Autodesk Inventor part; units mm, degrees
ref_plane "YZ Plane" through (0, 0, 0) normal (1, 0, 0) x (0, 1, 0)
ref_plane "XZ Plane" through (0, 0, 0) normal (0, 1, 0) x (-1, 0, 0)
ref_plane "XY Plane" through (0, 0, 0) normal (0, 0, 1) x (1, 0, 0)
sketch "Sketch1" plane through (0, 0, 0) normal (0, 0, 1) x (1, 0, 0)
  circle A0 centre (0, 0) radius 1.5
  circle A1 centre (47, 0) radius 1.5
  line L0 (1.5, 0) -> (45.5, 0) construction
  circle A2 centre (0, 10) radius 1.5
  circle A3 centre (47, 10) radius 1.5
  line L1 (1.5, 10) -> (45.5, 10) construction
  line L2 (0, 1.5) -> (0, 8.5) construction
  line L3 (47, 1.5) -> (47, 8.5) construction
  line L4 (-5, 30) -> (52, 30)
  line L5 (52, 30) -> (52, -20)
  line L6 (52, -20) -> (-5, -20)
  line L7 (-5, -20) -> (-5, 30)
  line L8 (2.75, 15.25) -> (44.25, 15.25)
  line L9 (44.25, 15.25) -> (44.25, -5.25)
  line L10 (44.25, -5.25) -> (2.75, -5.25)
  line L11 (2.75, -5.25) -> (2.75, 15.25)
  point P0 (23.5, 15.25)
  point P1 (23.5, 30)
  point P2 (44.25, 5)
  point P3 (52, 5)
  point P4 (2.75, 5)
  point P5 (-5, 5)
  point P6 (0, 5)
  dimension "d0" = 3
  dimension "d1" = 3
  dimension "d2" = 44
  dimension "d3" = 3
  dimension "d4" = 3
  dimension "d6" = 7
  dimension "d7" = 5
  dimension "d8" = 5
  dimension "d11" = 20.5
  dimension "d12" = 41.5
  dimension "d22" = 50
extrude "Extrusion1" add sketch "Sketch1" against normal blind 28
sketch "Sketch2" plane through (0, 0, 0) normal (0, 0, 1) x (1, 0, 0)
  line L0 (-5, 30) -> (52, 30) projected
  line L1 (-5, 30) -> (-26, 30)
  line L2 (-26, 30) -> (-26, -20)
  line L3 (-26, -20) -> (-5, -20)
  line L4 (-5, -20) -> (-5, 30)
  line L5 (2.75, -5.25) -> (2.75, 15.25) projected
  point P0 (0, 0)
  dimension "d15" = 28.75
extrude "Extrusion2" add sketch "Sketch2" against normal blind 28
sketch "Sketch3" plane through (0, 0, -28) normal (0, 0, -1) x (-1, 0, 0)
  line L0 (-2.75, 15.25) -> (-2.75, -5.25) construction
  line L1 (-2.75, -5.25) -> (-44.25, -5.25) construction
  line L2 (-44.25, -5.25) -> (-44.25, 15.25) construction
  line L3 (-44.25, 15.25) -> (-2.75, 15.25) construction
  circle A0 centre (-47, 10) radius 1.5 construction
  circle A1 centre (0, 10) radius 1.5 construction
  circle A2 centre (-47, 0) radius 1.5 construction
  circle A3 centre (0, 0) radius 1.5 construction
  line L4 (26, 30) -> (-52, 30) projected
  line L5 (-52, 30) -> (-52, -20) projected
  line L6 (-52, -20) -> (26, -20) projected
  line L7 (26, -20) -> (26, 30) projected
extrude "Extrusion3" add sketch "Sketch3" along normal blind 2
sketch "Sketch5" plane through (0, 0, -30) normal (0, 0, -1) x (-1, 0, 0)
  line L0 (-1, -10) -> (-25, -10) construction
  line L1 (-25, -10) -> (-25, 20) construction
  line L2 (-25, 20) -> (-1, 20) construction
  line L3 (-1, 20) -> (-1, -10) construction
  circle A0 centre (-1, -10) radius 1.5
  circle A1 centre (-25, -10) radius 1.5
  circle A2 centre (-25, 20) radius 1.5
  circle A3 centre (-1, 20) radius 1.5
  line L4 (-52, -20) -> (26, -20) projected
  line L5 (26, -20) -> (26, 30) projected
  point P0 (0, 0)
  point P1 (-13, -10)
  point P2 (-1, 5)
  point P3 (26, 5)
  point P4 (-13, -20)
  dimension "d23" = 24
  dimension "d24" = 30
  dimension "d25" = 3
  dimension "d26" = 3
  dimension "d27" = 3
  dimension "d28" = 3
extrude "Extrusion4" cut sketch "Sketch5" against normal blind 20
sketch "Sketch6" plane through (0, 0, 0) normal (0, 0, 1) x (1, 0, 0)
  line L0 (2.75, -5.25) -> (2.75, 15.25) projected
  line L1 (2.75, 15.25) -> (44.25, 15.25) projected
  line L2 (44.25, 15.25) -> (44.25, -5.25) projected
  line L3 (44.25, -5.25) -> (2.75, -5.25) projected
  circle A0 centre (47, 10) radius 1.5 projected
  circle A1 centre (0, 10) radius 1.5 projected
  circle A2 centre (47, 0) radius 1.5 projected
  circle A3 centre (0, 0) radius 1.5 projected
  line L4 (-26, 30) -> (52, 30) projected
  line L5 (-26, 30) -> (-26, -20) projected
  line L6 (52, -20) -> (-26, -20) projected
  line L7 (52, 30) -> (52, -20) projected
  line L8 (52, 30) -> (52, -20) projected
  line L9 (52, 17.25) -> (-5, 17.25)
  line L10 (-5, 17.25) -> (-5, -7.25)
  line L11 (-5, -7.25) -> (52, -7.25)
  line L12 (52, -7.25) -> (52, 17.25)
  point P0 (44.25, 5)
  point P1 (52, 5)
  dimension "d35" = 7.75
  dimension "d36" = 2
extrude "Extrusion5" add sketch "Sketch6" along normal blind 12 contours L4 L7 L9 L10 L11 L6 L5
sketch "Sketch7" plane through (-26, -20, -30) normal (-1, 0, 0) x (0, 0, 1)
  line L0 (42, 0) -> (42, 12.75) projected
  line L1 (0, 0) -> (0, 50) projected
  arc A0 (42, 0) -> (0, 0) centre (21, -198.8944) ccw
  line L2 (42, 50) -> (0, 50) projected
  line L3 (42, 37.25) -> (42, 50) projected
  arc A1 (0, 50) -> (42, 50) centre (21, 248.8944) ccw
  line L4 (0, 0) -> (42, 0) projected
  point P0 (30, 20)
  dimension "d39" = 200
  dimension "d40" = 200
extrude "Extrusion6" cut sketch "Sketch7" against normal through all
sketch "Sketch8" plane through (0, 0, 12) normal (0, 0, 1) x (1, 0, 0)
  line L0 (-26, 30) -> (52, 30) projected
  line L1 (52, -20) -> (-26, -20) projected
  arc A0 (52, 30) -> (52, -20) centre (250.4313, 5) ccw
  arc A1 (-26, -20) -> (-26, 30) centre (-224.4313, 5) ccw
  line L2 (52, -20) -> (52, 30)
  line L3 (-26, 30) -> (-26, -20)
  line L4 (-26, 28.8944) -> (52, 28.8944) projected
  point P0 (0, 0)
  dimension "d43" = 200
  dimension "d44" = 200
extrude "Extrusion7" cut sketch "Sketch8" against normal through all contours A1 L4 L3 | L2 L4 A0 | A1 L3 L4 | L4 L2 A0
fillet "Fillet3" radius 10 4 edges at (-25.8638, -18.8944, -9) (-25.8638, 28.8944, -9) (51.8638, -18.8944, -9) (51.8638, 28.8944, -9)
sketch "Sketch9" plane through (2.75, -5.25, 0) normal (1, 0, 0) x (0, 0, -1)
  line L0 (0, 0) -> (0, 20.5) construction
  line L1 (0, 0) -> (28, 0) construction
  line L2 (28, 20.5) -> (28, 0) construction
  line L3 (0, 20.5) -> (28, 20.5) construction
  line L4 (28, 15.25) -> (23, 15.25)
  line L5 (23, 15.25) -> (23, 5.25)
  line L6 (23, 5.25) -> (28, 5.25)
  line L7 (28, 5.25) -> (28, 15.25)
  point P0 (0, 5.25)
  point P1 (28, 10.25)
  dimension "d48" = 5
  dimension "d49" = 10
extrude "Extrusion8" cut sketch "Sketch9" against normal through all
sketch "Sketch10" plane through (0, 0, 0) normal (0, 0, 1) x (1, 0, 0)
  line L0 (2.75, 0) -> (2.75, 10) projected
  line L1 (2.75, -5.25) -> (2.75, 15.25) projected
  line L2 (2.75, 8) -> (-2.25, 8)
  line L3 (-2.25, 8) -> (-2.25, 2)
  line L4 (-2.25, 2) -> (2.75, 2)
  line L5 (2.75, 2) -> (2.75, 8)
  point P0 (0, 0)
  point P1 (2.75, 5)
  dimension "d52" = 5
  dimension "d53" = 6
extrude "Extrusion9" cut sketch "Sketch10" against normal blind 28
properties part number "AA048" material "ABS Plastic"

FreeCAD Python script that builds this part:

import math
import FreeCAD as App
import Part
import Sketcher

V = App.Vector
Q = App.Units.Quantity


def edges_at(feature, points):
    """Names of the edges that pass closest to the given points."""
    edges = feature.Shape.Edges
    near = lambda p: min(range(len(edges)), key=lambda i: edges[i].distToShape(Part.Vertex(*p))[0])
    return sorted({f"Edge{near(p) + 1}" for p in points})


def add_polygon(sketch, points):
    """Adds a closed chain of lines whose ends are joined by coincident constraints."""
    first, n = sketch.GeometryCount, len(points)
    for a, b in zip(points, points[1:] + points[:1]):
        sketch.addGeometry(Part.LineSegment(App.Vector(*a, 0), App.Vector(*b, 0)), False)
    for i in range(n):
        sketch.addConstraint(Sketcher.Constraint("Coincident", first + i, 2, first + (i + 1) % n, 1))

doc = App.newDocument("Part")
params = doc.addObject("Spreadsheet::Sheet", "Params")
for row, (alias, value) in enumerate([
    ("sketch1_diameter", "3 mm"),
    ("sketch1_height", "50 mm"),
    ("sketch1_width", "41.5 mm"),
    ("sketch1_height2", "20.5 mm"),
    ("sketch1_width2", "57 mm"),
    ("pad1_length", "28 mm"),
    ("sketch2_width", "21 mm"),
    ("sketch2_height", "50 mm"),
    ("pad2_length", "28 mm"),
    ("sketch3_width", "78 mm"),
    ("sketch3_height", "50 mm"),
    ("pad3_length", "2 mm"),
    ("sketch4_diameter", "3 mm"),
    ("pocket1_length", "20 mm"),
    ("sketch5_width", "78 mm"),
    ("sketch5_width2", "57 mm"),
    ("sketch5_height", "50 mm"),
    ("sketch5_height2", "24.5 mm"),
    ("pad4_length", "12 mm"),
    ("sketch6_radius", "200 mm"),
    ("sketch6_height", "42 mm"),
    ("sketch7_radius", "200 mm"),
    ("sketch7_height", "50 mm"),
    ("fillet_radius", "10 mm"),
    ("sketch8_width", "10 mm"),
    ("sketch8_height", "5 mm"),
    ("sketch9_width", "5 mm"),
    ("sketch9_height", "6 mm"),
    ("pocket5_length", "28 mm"),
], start=1):
    params.set(f"A{row}", alias)
    params.set(f"B{row}", "=" + value)
    params.setAlias(f"B{row}", alias)

body = doc.addObject("PartDesign::Body", "Body")

sketch1 = body.newObject("Sketcher::SketchObject", "Sketch")
sketch1.AttachmentSupport = (doc.getObject("XY_Plane"), [""])
sketch1.MapMode = "FlatFace"
add_polygon(sketch1, [(52, 30), (-5, 30), (-5, -20), (52, -20)])
sketch1.addGeometry(Part.Circle(V(0, 0, 0), V(0, 0, 1), 1.5), False)
sketch1.addGeometry(Part.Circle(V(47, 0, 0), V(0, 0, 1), 1.5), False)
sketch1.addGeometry(Part.Circle(V(0, 10, 0), V(0, 0, 1), 1.5), False)
add_polygon(sketch1, [(2.8, -5.2), (2.8, 15.2), (44.2, 15.2), (44.2, -5.2)])
sketch1.addGeometry(Part.Circle(V(47, 10, 0), V(0, 0, 1), 1.5), False)
sketch1.addConstraint([
    Sketcher.Constraint("Horizontal", 0),
    Sketcher.Constraint("Vertical", 1),
    Sketcher.Constraint("Horizontal", 2),
    Sketcher.Constraint("Vertical", 3),
    Sketcher.Constraint("Vertical", 7),
    Sketcher.Constraint("Horizontal", 8),
    Sketcher.Constraint("Vertical", 9),
    Sketcher.Constraint("Horizontal", 10),
    Sketcher.Constraint("Coincident", 4, 3, -1, 1),
    Sketcher.Constraint("Equal", 4, 5),
    Sketcher.Constraint("Equal", 5, 6),
    Sketcher.Constraint("Equal", 6, 11),
    Sketcher.Constraint("PointOnObject", 5, 3, -1),
    Sketcher.Constraint("PointOnObject", 6, 3, -2),
    Sketcher.Constraint("Horizontal", 6, 3, 11, 3),
    Sketcher.Constraint("Vertical", 5, 3, 11, 3),
    Sketcher.Constraint("Diameter", 4, Q("3 mm")),
    Sketcher.Constraint("DistanceY", 1, 2, 1, 1, Q("50 mm")),
    Sketcher.Constraint("DistanceX", 8, 1, 8, 2, Q("41.5 mm")),
    Sketcher.Constraint("DistanceY", 7, 1, 7, 2, Q("20.5 mm")),
    Sketcher.Constraint("DistanceX", 0, 2, -1, 1, Q("5 mm")),
    Sketcher.Constraint("DistanceX", 5, 3, 2, 2, Q("5 mm")),
    Sketcher.Constraint("DistanceX", 0, 2, 0, 1, Q("57 mm")),
    Sketcher.Constraint("DistanceY", -1, 1, 6, 3, Q("10 mm")),
    Sketcher.Constraint("DistanceY", -1, 1, 0, 2, Q("30 mm")),
    Sketcher.Constraint("DistanceX", -1, 1, 7, 2, Q("2.75 mm")),
    Sketcher.Constraint("DistanceY", -1, 1, 7, 2, Q("15.25 mm")),
])
sketch1.setExpression("Constraints[24]", "Params.sketch1_diameter")
sketch1.setExpression("Constraints[25]", "Params.sketch1_height")
sketch1.setExpression("Constraints[26]", "Params.sketch1_width")
sketch1.setExpression("Constraints[27]", "Params.sketch1_height2")
sketch1.setExpression("Constraints[30]", "Params.sketch1_width2")
pad1 = body.newObject("PartDesign::Pad", "Pad")
pad1.Profile = sketch1
pad1.setExpression("Length", "Params.pad1_length")
pad1.Reversed = True

sketch2 = body.newObject("Sketcher::SketchObject", "Sketch001")
sketch2.AttachmentSupport = (doc.getObject("XY_Plane"), [""])
sketch2.MapMode = "FlatFace"
add_polygon(sketch2, [(-5, -20), (-5, 30), (-26, 30), (-26, -20)])
sketch2.addConstraint([
    Sketcher.Constraint("Vertical", 0),
    Sketcher.Constraint("Horizontal", 1),
    Sketcher.Constraint("Vertical", 2),
    Sketcher.Constraint("Horizontal", 3),
    Sketcher.Constraint("DistanceX", 1, 2, 1, 1, Q("21 mm")),
    Sketcher.Constraint("DistanceY", 0, 1, 0, 2, Q("50 mm")),
    Sketcher.Constraint("DistanceX", 0, 2, -1, 1, Q("5 mm")),
    Sketcher.Constraint("DistanceY", -1, 1, 0, 2, Q("30 mm")),
])
sketch2.setExpression("Constraints[8]", "Params.sketch2_width")
sketch2.setExpression("Constraints[9]", "Params.sketch2_height")
pad2 = body.newObject("PartDesign::Pad", "Pad001")
pad2.Profile = sketch2
pad2.setExpression("Length", "Params.pad2_length")
pad2.Reversed = True

sketch3 = body.newObject("Sketcher::SketchObject", "Sketch002")
sketch3.AttachmentSupport = (doc.getObject("XY_Plane"), [""])
sketch3.MapMode = "FlatFace"
sketch3.AttachmentOffset = App.Placement(V(0, 0, -28), App.Rotation())
add_polygon(sketch3, [(-26, -20), (-26, 30), (52, 30), (52, -20)])
sketch3.addConstraint([
    Sketcher.Constraint("Vertical", 0),
    Sketcher.Constraint("Horizontal", 1),
    Sketcher.Constraint("Vertical", 2),
    Sketcher.Constraint("Horizontal", 3),
    Sketcher.Constraint("DistanceX", 1, 1, 1, 2, Q("78 mm")),
    Sketcher.Constraint("DistanceY", 0, 1, 0, 2, Q("50 mm")),
    Sketcher.Constraint("DistanceX", 0, 2, -1, 1, Q("26 mm")),
    Sketcher.Constraint("DistanceY", -1, 1, 0, 2, Q("30 mm")),
])
sketch3.setExpression("Constraints[8]", "Params.sketch3_width")
sketch3.setExpression("Constraints[9]", "Params.sketch3_height")
pad3 = body.newObject("PartDesign::Pad", "Pad002")
pad3.Profile = sketch3
pad3.setExpression("Length", "Params.pad3_length")
pad3.Reversed = True

sketch4 = body.newObject("Sketcher::SketchObject", "Sketch003")
sketch4.AttachmentSupport = (doc.getObject("XY_Plane"), [""])
sketch4.MapMode = "FlatFace"
sketch4.AttachmentOffset = App.Placement(V(0, 0, -30), App.Rotation())
sketch4.addGeometry([
    Part.Circle(V(1, -10, 0), V(0, 0, 1), 1.5),
    Part.Circle(V(25, -10, 0), V(0, 0, 1), 1.5),
    Part.Circle(V(25, 20, 0), V(0, 0, 1), 1.5),
    Part.Circle(V(1, 20, 0), V(0, 0, 1), 1.5),
], False)
sketch4.addConstraint([
    Sketcher.Constraint("Equal", 0, 1),
    Sketcher.Constraint("Equal", 1, 2),
    Sketcher.Constraint("Equal", 2, 3),
    Sketcher.Constraint("Horizontal", 0, 3, 1, 3),
    Sketcher.Constraint("Horizontal", 2, 3, 3, 3),
    Sketcher.Constraint("Vertical", 1, 3, 2, 3),
    Sketcher.Constraint("Vertical", 0, 3, 3, 3),
    Sketcher.Constraint("Diameter", 0, Q("3 mm")),
    Sketcher.Constraint("DistanceX", 0, 3, 1, 3, Q("24 mm")),
    Sketcher.Constraint("DistanceY", 1, 3, 2, 3, Q("30 mm")),
    Sketcher.Constraint("DistanceX", -1, 1, 0, 3, Q("1 mm")),
    Sketcher.Constraint("DistanceY", 0, 3, -1, 1, Q("10 mm")),
])
sketch4.setExpression("Constraints[7]", "Params.sketch4_diameter")
pocket1 = body.newObject("PartDesign::Pocket", "Pocket")
pocket1.Profile = sketch4
pocket1.setExpression("Length", "Params.pocket1_length")
pocket1.Reversed = True

sketch5 = body.newObject("Sketcher::SketchObject", "Sketch004")
sketch5.AttachmentSupport = (doc.getObject("XY_Plane"), [""])
sketch5.MapMode = "FlatFace"
add_polygon(sketch5, [(52, 30), (-26, 30), (-26, -20), (52, -20), (52, -7), (-5, -7), (-5, 17), (52, 17)])
sketch5.addConstraint([
    Sketcher.Constraint("Horizontal", 0),
    Sketcher.Constraint("Vertical", 1),
    Sketcher.Constraint("Horizontal", 2),
    Sketcher.Constraint("Vertical", 3),
    Sketcher.Constraint("Horizontal", 4),
    Sketcher.Constraint("Vertical", 5),
    Sketcher.Constraint("Horizontal", 6),
    Sketcher.Constraint("Vertical", 7),
    Sketcher.Constraint("Vertical", 3, 2, 6, 2),
    Sketcher.Constraint("Equal", 3, 7),
    Sketcher.Constraint("DistanceX", 0, 2, 0, 1, Q("78 mm")),
    Sketcher.Constraint("DistanceX", 4, 2, 4, 1, Q("57 mm")),
    Sketcher.Constraint("DistanceY", 1, 2, 1, 1, Q("50 mm")),
    Sketcher.Constraint("DistanceY", 5, 1, 5, 2, Q("24.5 mm")),
    Sketcher.Constraint("DistanceX", 0, 2, -1, 1, Q("26 mm")),
    Sketcher.Constraint("DistanceY", -1, 1, 0, 2, Q("30 mm")),
])
sketch5.setExpression("Constraints[18]", "Params.sketch5_width")
sketch5.setExpression("Constraints[19]", "Params.sketch5_width2")
sketch5.setExpression("Constraints[20]", "Params.sketch5_height")
sketch5.setExpression("Constraints[21]", "Params.sketch5_height2")
pad4 = body.newObject("PartDesign::Pad", "Pad003")
pad4.Profile = sketch5
pad4.setExpression("Length", "Params.pad4_length")

sketch6 = body.newObject("Sketcher::SketchObject", "Sketch005")
sketch6.AttachmentSupport = (doc.getObject("YZ_Plane"), [""])
sketch6.MapMode = "FlatFace"
sketch6.AttachmentOffset = App.Placement(V(0, 0, -26), App.Rotation())
sketch6.addGeometry([
    Part.LineSegment(V(30, 12, 0), V(30, -30, 0)),
    Part.ArcOfCircle(Part.Circle(V(229, -9, 0), V(0, 0, 1), 200), math.radians(173.97), math.radians(186.03)),
    Part.ArcOfCircle(Part.Circle(V(-219, -9, 0), V(0, 0, 1), 200), math.radians(-6.03), math.radians(6.03)),
    Part.LineSegment(V(-20, -30, 0), V(-20, 12, 0)),
], False)
sketch6.addConstraint([
    Sketcher.Constraint("Coincident", 0, 1, 1, 1),
    Sketcher.Constraint("Coincident", 1, 2, 0, 2),
    Sketcher.Constraint("Coincident", 2, 1, 3, 1),
    Sketcher.Constraint("Coincident", 3, 2, 2, 2),
    Sketcher.Constraint("Vertical", 0),
    Sketcher.Constraint("Vertical", 3),
    Sketcher.Constraint("Equal", 1, 2),
    Sketcher.Constraint("Horizontal", 1, 3, 2, 3),
    Sketcher.Constraint("Horizontal", 1, 2, 2, 1),
    Sketcher.Constraint("Radius", 1, Q("200 mm")),
    Sketcher.Constraint("DistanceY", 0, 2, 0, 1, Q("42 mm")),
    Sketcher.Constraint("DistanceY", 1, 3, -1, 1, Q("9 mm")),
    Sketcher.Constraint("DistanceX", -1, 1, 0, 1, Q("30 mm")),
    Sketcher.Constraint("DistanceX", 2, 1, -1, 1, Q("20 mm")),
])
sketch6.setExpression("Constraints[9]", "Params.sketch6_radius")
sketch6.setExpression("Constraints[10]", "Params.sketch6_height")
pocket2 = body.newObject("PartDesign::Pocket", "Pocket001")
pocket2.Profile = sketch6
pocket2.Type = "ThroughAll"
pocket2.Reversed = True

sketch7 = body.newObject("Sketcher::SketchObject", "Sketch006")
sketch7.AttachmentSupport = (doc.getObject("XY_Plane"), [""])
sketch7.MapMode = "FlatFace"
sketch7.AttachmentOffset = App.Placement(V(0, 0, 12), App.Rotation())
sketch7.addGeometry([
    Part.LineSegment(V(-26, 30, 0), V(-26, -20, 0)),
    Part.ArcOfCircle(Part.Circle(V(-224, 5, 0), V(0, 0, 1), 200), math.radians(-7.18), math.radians(7.18)),
    Part.ArcOfCircle(Part.Circle(V(250, 5, 0), V(0, 0, 1), 200), math.radians(172.82), math.radians(187.18)),
    Part.LineSegment(V(52, -20, 0), V(52, 30, 0)),
], False)
sketch7.addConstraint([
    Sketcher.Constraint("Coincident", 0, 1, 1, 2),
    Sketcher.Constraint("Coincident", 1, 1, 0, 2),
    Sketcher.Constraint("Coincident", 2, 1, 3, 2),
    Sketcher.Constraint("Coincident", 3, 1, 2, 2),
    Sketcher.Constraint("Vertical", 0),
    Sketcher.Constraint("Vertical", 3),
    Sketcher.Constraint("Equal", 1, 2),
    Sketcher.Constraint("Horizontal", 1, 3, 2, 3),
    Sketcher.Constraint("Horizontal", 0, 1, 2, 1),
    Sketcher.Constraint("Radius", 1, Q("200 mm")),
    Sketcher.Constraint("DistanceY", 0, 2, 0, 1, Q("50 mm")),
    Sketcher.Constraint("DistanceY", -1, 1, 1, 3, Q("5 mm")),
    Sketcher.Constraint("DistanceX", 0, 1, -1, 1, Q("26 mm")),
    Sketcher.Constraint("DistanceX", -1, 1, 2, 1, Q("52 mm")),
])
sketch7.setExpression("Constraints[9]", "Params.sketch7_radius")
sketch7.setExpression("Constraints[10]", "Params.sketch7_height")
pocket3 = body.newObject("PartDesign::Pocket", "Pocket002")
pocket3.Profile = sketch7
pocket3.Type = "ThroughAll"
doc.recompute()

fillet = body.newObject("PartDesign::Fillet", "Fillet")
fillet.Base = (pocket3, edges_at(pocket3, [
    (-25.864, -18.894, -9),
    (-25.864, 28.894, -9),
    (51.864, -18.894, -9),
    (51.864, 28.894, -9),
]))
fillet.setExpression("Radius", "Params.fillet_radius")

sketch8 = body.newObject("Sketcher::SketchObject", "Sketch007")
sketch8.AttachmentSupport = (doc.getObject("YZ_Plane"), [""])
sketch8.MapMode = "FlatFace"
sketch8.AttachmentOffset = App.Placement(V(0, 0, 2.75), App.Rotation())
add_polygon(sketch8, [(0, -28), (10, -28), (10, -23), (0, -23)])
sketch8.addConstraint([
    Sketcher.Constraint("Horizontal", 0),
    Sketcher.Constraint("Vertical", 1),
    Sketcher.Constraint("Horizontal", 2),
    Sketcher.Constraint("Vertical", 3),
    Sketcher.Constraint("PointOnObject", 2, 2, -2),
    Sketcher.Constraint("DistanceX", 0, 1, 0, 2, Q("10 mm")),
    Sketcher.Constraint("DistanceY", 1, 1, 1, 2, Q("5 mm")),
    Sketcher.Constraint("DistanceY", 0, 2, -1, 1, Q("28 mm")),
])
sketch8.setExpression("Constraints[9]", "Params.sketch8_width")
sketch8.setExpression("Constraints[10]", "Params.sketch8_height")
pocket4 = body.newObject("PartDesign::Pocket", "Pocket003")
pocket4.Profile = sketch8
pocket4.Type = "ThroughAll"

sketch9 = body.newObject("Sketcher::SketchObject", "Sketch008")
sketch9.AttachmentSupport = (doc.getObject("XY_Plane"), [""])
sketch9.MapMode = "FlatFace"
add_polygon(sketch9, [(-2, 2), (3, 2), (3, 8), (-2, 8)])
sketch9.addConstraint([
    Sketcher.Constraint("Horizontal", 0),
    Sketcher.Constraint("Vertical", 1),
    Sketcher.Constraint("Horizontal", 2),
    Sketcher.Constraint("Vertical", 3),
    Sketcher.Constraint("DistanceX", 0, 1, 0, 2, Q("5 mm")),
    Sketcher.Constraint("DistanceY", 1, 1, 1, 2, Q("6 mm")),
    Sketcher.Constraint("DistanceY", -1, 1, 0, 2, Q("2 mm")),
    Sketcher.Constraint("DistanceX", -1, 1, 0, 2, Q("2.75 mm")),
])
sketch9.setExpression("Constraints[8]", "Params.sketch9_width")
sketch9.setExpression("Constraints[9]", "Params.sketch9_height")
pocket5 = body.newObject("PartDesign::Pocket", "Pocket004")
pocket5.Profile = sketch9
pocket5.setExpression("Length", "Params.pocket5_length")

doc.recompute()
